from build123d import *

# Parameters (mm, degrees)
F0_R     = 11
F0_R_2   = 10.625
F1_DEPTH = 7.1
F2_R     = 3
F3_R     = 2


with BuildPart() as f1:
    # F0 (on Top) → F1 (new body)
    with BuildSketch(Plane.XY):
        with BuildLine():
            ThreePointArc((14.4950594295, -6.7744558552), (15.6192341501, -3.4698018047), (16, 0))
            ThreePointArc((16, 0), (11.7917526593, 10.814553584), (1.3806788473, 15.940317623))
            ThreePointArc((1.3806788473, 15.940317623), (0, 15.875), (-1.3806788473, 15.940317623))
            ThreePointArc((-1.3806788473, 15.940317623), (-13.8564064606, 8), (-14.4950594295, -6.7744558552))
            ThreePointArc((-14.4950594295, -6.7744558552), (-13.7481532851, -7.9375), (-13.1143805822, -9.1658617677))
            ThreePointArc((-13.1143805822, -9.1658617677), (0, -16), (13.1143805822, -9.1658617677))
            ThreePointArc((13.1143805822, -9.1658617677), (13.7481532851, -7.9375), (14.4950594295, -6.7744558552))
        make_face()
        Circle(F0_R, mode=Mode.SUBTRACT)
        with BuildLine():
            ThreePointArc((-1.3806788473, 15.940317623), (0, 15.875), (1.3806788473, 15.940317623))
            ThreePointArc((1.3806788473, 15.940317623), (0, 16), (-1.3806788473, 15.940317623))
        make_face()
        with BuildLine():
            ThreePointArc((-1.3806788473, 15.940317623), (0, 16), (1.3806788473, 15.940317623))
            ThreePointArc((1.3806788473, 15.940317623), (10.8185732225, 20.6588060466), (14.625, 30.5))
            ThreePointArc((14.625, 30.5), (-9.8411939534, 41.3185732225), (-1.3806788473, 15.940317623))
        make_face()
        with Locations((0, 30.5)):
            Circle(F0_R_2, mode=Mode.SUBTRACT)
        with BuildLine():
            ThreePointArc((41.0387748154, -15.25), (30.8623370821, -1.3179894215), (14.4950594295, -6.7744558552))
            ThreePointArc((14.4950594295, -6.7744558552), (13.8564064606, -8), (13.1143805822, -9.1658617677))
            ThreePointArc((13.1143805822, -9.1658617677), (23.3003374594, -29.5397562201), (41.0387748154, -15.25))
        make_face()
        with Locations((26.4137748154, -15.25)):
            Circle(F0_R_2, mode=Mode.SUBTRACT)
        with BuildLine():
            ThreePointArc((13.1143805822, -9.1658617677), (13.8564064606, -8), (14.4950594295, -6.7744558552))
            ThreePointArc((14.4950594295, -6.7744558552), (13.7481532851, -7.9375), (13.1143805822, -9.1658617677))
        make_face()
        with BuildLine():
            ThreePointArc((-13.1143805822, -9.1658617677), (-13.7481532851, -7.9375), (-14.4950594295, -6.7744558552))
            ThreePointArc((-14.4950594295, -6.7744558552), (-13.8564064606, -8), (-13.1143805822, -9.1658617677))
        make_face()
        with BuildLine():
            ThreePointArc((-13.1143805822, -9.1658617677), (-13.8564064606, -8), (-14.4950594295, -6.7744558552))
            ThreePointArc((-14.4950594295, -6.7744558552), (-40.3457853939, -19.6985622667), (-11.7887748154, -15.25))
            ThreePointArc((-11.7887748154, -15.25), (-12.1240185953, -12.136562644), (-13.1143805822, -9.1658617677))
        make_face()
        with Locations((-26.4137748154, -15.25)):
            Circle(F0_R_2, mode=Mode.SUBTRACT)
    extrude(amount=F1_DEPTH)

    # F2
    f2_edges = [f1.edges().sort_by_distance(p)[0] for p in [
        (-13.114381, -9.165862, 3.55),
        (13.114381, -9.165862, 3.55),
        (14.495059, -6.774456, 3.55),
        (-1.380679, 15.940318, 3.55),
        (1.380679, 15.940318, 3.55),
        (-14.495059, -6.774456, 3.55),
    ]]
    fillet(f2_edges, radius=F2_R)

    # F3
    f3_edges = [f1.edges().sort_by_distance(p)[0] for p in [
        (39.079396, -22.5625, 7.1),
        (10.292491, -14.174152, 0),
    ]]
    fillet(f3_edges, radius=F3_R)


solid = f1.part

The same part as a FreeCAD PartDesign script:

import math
import FreeCAD as App
import Part
import Sketcher

V = App.Vector
Q = App.Units.Quantity


def edges_at(feature, points):
    """Names of the edges that pass closest to the given points."""
    edges = feature.Shape.Edges
    near = lambda p: min(range(len(edges)), key=lambda i: edges[i].distToShape(Part.Vertex(*p))[0])
    return sorted({f"Edge{near(p) + 1}" for p in points})

doc = App.newDocument("Part")
body = doc.addObject("PartDesign::Body", "Body")

# Sketch on XY plane
sketch1 = body.newObject("Sketcher::SketchObject", "Sketch")
sketch1.AttachmentSupport = (doc.getObject("XY_Plane"), [""])
sketch1.MapMode = "FlatFace"
sketch1.addGeometry(Part.ArcOfCircle(Part.Circle(V(0, 0, 0), V(0, 0, 1), 16), math.radians(-25), math.radians(0)), False)
sketch1.addGeometry(Part.ArcOfCircle(Part.Circle(V(0, 0, 0), V(0, 0, 1), 16), math.radians(0), math.radians(85)), False)
sketch1.addGeometry(Part.ArcOfCircle(Part.Circle(V(0, 30.5, 0), V(0, 0, 1), 14.6), math.radians(-85), math.radians(0)), False)
sketch1.addGeometry(Part.ArcOfCircle(Part.Circle(V(0, 30.5, 0), V(0, 0, 1), 14.6), math.radians(0), math.radians(265)), False)
sketch1.addGeometry(Part.ArcOfCircle(Part.Circle(V(0, 0, 0), V(0, 0, 1), 16), math.radians(95), math.radians(205)), False)
sketch1.addGeometry(Part.ArcOfCircle(Part.Circle(V(-26.4, -15.2, 0), V(0, 0, 1), 14.6), math.radians(35), math.radians(360)), False)
sketch1.addGeometry(Part.ArcOfCircle(Part.Circle(V(-26.4, -15.2, 0), V(0, 0, 1), 14.6), math.radians(0), math.radians(25)), False)
sketch1.addGeometry(Part.ArcOfCircle(Part.Circle(V(0, 0, 0), V(0, 0, 1), 16), math.radians(-145), math.radians(-35)), False)
sketch1.addGeometry(Part.ArcOfCircle(Part.Circle(V(26.4, -15.2, 0), V(0, 0, 1), 14.6), math.radians(155), math.radians(505)), False)
sketch1.addGeometry(Part.Circle(V(-26.4, -15.2, 0), V(0, 0, 1), 10.6), False)
sketch1.addGeometry(Part.Circle(V(26.4, -15.2, 0), V(0, 0, 1), 10.6), False)
sketch1.addGeometry(Part.Circle(V(0, 0, 0), V(0, 0, 1), 11), False)
sketch1.addGeometry(Part.Circle(V(0, 30.5, 0), V(0, 0, 1), 10.6), False)
sketch1.addConstraint(Sketcher.Constraint("Tangent", 0, 2, 1, 1))
sketch1.addConstraint(Sketcher.Constraint("Coincident", 1, 2, 2, 1))
sketch1.addConstraint(Sketcher.Constraint("Tangent", 2, 2, 3, 1))
sketch1.addConstraint(Sketcher.Constraint("Coincident", 3, 2, 4, 1))
sketch1.addConstraint(Sketcher.Constraint("Coincident", 4, 2, 5, 1))
sketch1.addConstraint(Sketcher.Constraint("Tangent", 5, 2, 6, 1))
sketch1.addConstraint(Sketcher.Constraint("Coincident", 6, 2, 7, 1))
sketch1.addConstraint(Sketcher.Constraint("Coincident", 7, 2, 8, 1))
sketch1.addConstraint(Sketcher.Constraint("Coincident", 8, 2, 0, 1))
sketch1.addConstraint(Sketcher.Constraint("Coincident", 0, 3, -1, 1))
sketch1.addConstraint(Sketcher.Constraint("Coincident", 4, 3, -1, 1))
sketch1.addConstraint(Sketcher.Constraint("Coincident", 7, 3, -1, 1))
sketch1.addConstraint(Sketcher.Constraint("Coincident", 11, 3, -1, 1))
sketch1.addConstraint(Sketcher.Constraint("Coincident", 9, 3, 5, 3))
sketch1.addConstraint(Sketcher.Constraint("Coincident", 10, 3, 8, 3))
sketch1.addConstraint(Sketcher.Constraint("Coincident", 12, 3, 2, 3))
sketch1.addConstraint(Sketcher.Constraint("Equal", 0, 1))
sketch1.addConstraint(Sketcher.Constraint("Equal", 2, 3))
sketch1.addConstraint(Sketcher.Constraint("Equal", 1, 4))
sketch1.addConstraint(Sketcher.Constraint("Equal", 3, 5))
sketch1.addConstraint(Sketcher.Constraint("Equal", 5, 6))
sketch1.addConstraint(Sketcher.Constraint("Equal", 4, 7))
sketch1.addConstraint(Sketcher.Constraint("Equal", 6, 8))
sketch1.addConstraint(Sketcher.Constraint("Equal", 9, 10))
sketch1.addConstraint(Sketcher.Constraint("Equal", 10, 12))
sketch1.addConstraint(Sketcher.Constraint("Symmetric", 5, 3, 8, 3, -2))
sketch1.addConstraint(Sketcher.Constraint("PointOnObject", 2, 3, -2))
sketch1.addConstraint(Sketcher.Constraint("PointOnObject", 0, 2, -1))
sketch1.addConstraint(Sketcher.Constraint("Horizontal", 12, 3, 2, 2))
sketch1.addConstraint(Sketcher.Constraint("Horizontal", 10, 3, 5, 2))
sketch1.addConstraint(Sketcher.Constraint("Diameter", 11, Q("22 mm")))
sketch1.addConstraint(Sketcher.Constraint("Radius", 0, Q("16 mm")))
sketch1.addConstraint(Sketcher.Constraint("Diameter", 9, Q("21.25 mm")))
sketch1.addConstraint(Sketcher.Constraint("Radius", 2, Q("14.625 mm")))
sketch1.addConstraint(Sketcher.Constraint("DistanceY", -1, 1, 2, 3, Q("30.5 mm")))
sketch1.addConstraint(Sketcher.Constraint("DistanceY", 5, 3, -1, 1, Q("15.25 mm")))
sketch1.addConstraint(Sketcher.Constraint("DistanceX", 4, 2, -1, 1, Q("14.495059 mm")))
pad1 = body.newObject("PartDesign::Pad", "Pad")
pad1.Profile = sketch1
pad1.Length = 7.1
doc.recompute()

fillet = body.newObject("PartDesign::Fillet", "Fillet")
fillet.Base = (pad1, edges_at(pad1, [
    (-13.114, -9.166, 3.55),
    (13.114, -9.166, 3.55),
    (14.495, -6.774, 3.55),
    (-1.381, 15.94, 3.55),
    (1.381, 15.94, 3.55),
    (-14.495, -6.774, 3.55),
]))
fillet.Radius = 3
doc.recompute()

fillet2 = body.newObject("PartDesign::Fillet", "Fillet001")
fillet2.Base = (fillet, edges_at(fillet, [(39.079, -22.562, 7.1), (10.292, -14.174, 0)]))
fillet2.Radius = 2

doc.recompute()
